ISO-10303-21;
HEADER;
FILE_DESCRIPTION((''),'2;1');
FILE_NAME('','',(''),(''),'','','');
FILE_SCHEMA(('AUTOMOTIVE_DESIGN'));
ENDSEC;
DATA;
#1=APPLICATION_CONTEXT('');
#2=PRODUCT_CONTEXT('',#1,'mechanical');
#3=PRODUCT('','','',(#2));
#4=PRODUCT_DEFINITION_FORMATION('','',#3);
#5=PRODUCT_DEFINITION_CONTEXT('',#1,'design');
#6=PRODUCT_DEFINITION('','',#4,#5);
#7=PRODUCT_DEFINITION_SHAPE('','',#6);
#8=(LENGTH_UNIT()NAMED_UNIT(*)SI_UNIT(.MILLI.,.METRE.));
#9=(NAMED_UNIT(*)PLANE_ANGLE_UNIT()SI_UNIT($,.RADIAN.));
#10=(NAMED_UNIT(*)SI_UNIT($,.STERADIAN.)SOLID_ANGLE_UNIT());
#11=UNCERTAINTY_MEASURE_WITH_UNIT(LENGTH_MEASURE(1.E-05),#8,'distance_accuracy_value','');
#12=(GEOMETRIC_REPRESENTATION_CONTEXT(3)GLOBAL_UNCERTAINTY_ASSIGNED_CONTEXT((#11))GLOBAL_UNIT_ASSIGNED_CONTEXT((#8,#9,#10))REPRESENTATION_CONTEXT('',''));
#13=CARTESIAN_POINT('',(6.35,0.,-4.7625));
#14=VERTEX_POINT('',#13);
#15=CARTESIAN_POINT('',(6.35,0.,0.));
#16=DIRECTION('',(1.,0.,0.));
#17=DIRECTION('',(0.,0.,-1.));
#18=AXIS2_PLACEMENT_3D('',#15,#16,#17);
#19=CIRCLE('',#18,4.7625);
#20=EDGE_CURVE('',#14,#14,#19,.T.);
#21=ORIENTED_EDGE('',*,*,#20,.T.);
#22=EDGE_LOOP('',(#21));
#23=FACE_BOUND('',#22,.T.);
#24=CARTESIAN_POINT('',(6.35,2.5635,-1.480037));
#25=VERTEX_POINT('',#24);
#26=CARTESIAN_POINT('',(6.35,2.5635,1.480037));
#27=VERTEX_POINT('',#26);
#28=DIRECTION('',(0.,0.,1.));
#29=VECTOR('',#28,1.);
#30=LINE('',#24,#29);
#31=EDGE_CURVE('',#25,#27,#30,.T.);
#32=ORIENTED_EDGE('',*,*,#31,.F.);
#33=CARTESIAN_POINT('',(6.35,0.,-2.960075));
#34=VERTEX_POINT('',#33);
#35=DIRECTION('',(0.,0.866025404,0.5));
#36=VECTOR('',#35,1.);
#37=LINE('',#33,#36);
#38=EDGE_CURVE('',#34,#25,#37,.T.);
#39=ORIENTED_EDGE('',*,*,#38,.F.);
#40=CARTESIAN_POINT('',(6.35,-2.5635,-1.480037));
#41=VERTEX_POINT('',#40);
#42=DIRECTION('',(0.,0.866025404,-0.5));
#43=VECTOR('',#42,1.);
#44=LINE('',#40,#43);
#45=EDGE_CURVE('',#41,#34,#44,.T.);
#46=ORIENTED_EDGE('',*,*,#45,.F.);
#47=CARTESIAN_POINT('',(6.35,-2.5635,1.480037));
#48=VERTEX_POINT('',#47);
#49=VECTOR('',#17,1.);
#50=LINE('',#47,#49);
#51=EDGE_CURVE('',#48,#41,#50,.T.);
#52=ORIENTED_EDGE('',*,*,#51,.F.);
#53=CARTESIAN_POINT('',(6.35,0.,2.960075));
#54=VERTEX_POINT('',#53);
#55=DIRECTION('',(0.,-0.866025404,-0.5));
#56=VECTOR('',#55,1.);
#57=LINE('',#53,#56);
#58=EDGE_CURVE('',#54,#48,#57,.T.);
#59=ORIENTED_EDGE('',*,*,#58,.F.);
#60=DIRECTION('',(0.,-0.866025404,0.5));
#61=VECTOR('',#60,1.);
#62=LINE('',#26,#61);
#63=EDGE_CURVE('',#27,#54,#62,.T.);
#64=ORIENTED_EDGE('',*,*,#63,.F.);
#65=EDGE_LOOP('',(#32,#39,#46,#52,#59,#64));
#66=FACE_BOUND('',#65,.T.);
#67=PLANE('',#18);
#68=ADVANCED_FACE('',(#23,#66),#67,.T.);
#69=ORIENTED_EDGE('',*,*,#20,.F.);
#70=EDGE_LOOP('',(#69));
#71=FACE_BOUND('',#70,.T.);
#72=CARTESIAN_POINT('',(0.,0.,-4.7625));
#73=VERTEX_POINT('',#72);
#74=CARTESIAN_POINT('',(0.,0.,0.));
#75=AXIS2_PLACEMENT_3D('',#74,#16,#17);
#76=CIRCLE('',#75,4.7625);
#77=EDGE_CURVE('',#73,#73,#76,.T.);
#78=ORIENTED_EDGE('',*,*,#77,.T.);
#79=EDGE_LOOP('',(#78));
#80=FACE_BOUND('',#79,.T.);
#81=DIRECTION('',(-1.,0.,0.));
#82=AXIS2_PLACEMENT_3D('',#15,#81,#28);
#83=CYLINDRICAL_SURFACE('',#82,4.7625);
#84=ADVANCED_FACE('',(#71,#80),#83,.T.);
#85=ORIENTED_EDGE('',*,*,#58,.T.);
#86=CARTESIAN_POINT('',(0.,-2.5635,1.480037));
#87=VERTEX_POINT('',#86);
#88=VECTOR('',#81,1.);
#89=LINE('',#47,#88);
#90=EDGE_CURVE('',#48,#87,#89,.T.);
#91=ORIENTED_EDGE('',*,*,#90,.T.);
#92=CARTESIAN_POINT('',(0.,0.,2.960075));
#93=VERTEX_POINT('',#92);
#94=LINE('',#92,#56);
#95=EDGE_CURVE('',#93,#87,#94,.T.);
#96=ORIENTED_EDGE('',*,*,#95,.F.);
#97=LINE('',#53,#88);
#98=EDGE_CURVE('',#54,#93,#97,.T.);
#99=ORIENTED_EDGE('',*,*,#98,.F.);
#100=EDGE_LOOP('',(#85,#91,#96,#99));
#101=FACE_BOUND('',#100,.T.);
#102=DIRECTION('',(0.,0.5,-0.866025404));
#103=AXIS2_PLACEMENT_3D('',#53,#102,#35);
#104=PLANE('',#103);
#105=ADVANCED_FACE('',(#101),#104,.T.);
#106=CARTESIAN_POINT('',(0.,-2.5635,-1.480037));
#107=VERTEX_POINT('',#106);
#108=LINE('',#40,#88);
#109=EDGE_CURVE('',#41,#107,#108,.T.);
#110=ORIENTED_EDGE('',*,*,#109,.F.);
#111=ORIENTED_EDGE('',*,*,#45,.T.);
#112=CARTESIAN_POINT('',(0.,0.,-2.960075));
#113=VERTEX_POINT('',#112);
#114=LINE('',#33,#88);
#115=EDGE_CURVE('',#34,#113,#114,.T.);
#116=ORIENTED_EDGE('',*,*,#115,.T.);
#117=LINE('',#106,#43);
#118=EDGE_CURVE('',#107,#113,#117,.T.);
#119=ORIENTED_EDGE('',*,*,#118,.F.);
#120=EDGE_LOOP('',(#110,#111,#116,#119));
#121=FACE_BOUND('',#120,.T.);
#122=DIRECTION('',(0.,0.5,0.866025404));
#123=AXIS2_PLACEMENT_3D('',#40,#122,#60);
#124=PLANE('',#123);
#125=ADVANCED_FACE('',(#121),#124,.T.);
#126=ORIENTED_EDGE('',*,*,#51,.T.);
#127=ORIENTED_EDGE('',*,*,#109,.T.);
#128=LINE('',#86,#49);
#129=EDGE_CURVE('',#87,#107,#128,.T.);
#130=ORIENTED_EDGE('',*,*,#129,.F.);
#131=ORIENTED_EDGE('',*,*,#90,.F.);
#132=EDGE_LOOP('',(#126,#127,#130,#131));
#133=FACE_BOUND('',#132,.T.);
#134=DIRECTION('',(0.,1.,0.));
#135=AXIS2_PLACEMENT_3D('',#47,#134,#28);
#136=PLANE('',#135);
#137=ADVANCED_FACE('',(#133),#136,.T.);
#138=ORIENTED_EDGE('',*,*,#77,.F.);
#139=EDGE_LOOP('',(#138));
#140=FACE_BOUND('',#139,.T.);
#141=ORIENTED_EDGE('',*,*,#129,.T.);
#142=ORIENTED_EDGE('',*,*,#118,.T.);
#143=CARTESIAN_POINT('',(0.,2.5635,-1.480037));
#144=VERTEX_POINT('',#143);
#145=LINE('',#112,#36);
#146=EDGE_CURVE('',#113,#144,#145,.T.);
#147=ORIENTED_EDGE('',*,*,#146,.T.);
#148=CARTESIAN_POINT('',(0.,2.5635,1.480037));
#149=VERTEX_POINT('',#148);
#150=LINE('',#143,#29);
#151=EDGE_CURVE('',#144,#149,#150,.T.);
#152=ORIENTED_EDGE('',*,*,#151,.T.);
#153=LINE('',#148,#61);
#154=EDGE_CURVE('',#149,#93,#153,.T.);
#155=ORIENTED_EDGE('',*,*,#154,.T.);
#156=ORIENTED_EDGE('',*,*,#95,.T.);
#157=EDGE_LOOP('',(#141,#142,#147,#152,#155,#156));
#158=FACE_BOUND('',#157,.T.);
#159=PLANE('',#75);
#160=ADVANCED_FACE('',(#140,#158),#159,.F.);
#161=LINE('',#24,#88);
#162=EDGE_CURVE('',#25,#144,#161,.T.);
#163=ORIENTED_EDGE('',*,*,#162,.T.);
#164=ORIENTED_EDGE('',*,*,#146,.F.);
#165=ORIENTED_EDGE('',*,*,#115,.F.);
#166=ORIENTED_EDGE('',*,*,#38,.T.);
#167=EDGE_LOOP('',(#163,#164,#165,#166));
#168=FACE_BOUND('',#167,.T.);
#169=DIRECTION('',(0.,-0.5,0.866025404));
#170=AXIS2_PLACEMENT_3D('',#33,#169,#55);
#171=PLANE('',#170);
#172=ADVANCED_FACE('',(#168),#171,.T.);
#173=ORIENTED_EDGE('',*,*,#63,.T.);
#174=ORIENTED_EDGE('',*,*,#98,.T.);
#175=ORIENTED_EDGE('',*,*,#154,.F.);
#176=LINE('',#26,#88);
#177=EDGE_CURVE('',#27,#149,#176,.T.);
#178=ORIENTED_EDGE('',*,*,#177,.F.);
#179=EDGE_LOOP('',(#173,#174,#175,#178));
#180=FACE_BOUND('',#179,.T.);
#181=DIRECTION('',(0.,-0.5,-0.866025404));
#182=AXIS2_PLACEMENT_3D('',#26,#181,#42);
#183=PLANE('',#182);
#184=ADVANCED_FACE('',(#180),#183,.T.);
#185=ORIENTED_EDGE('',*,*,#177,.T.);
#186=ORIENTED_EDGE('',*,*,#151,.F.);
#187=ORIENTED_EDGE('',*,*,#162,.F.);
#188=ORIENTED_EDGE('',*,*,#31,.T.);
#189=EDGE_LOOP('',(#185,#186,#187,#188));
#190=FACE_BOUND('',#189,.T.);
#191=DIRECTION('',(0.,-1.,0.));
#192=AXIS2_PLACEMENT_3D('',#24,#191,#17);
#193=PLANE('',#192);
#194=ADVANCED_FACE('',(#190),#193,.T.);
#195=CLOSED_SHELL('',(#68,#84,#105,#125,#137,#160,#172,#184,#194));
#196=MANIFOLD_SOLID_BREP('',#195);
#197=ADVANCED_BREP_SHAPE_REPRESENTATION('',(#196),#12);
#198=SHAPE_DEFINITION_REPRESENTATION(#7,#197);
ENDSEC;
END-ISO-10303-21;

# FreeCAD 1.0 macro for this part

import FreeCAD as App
import Part
import Sketcher
from FreeCAD import Vector
Q = App.Units.Quantity

doc = App.newDocument("Part")
body = doc.addObject("PartDesign::Body", "Body")

# Sketch on YZ plane
sketch1 = body.newObject("Sketcher::SketchObject", "Sketch")
sketch1.AttachmentSupport = (doc.getObject("YZ_Plane"), [""])
sketch1.MapMode = "FlatFace"
sketch1.addGeometry([
    Part.Circle(Vector(0, 0, 0), Vector(0, 0, 1), 4.8),  # 0
    Part.LineSegment(Vector(2.6, 1.5, 0), Vector(2.6, -1.5, 0)),  # 1
    Part.LineSegment(Vector(2.6, -1.5, 0), Vector(0, -3, 0)),  # 2
    Part.LineSegment(Vector(0, -3, 0), Vector(-2.6, -1.5, 0)),  # 3
    Part.LineSegment(Vector(-2.6, -1.5, 0), Vector(-2.6, 1.5, 0)),  # 4
    Part.LineSegment(Vector(-2.6, 1.5, 0), Vector(0, 3, 0)),  # 5
    Part.LineSegment(Vector(0, 3, 0), Vector(2.6, 1.5, 0)),  # 6
], False)
sketch1.addConstraint([
    Sketcher.Constraint("Coincident", 1, 2, 2, 1),
    Sketcher.Constraint("Coincident", 2, 2, 3, 1),
    Sketcher.Constraint("Coincident", 3, 2, 4, 1),
    Sketcher.Constraint("Coincident", 4, 2, 5, 1),
    Sketcher.Constraint("Coincident", 5, 2, 6, 1),
    Sketcher.Constraint("Coincident", 6, 2, 1, 1),
    Sketcher.Constraint("Vertical", 1),
    Sketcher.Constraint("Vertical", 4),
    Sketcher.Constraint("Coincident", 0, 3, -1, 1),
    Sketcher.Constraint("Symmetric", 1, 2, 4, 2, -1, 1),
    Sketcher.Constraint("Symmetric", 2, 2, 5, 2, -1, 1),
    Sketcher.Constraint("PointOnObject", 2, 2, -2),
    Sketcher.Constraint("Parallel", 3, 6),
    Sketcher.Constraint("Horizontal", 1, 2, 3, 2),
    Sketcher.Constraint("Diameter", 0, Q("0.375 in")),
    Sketcher.Constraint("Angle", 2, Q("-150 deg")),
    Sketcher.Constraint("DistanceX", -1, 1, 1, 2, 2.5635),
    Sketcher.Constraint("DistanceY", 1, 2, 1, 1, 2.960075),
])
pad1 = body.newObject("PartDesign::Pad", "Pad")
pad1.Profile = sketch1
pad1.Length = Q("0.25 in")

doc.recompute()
